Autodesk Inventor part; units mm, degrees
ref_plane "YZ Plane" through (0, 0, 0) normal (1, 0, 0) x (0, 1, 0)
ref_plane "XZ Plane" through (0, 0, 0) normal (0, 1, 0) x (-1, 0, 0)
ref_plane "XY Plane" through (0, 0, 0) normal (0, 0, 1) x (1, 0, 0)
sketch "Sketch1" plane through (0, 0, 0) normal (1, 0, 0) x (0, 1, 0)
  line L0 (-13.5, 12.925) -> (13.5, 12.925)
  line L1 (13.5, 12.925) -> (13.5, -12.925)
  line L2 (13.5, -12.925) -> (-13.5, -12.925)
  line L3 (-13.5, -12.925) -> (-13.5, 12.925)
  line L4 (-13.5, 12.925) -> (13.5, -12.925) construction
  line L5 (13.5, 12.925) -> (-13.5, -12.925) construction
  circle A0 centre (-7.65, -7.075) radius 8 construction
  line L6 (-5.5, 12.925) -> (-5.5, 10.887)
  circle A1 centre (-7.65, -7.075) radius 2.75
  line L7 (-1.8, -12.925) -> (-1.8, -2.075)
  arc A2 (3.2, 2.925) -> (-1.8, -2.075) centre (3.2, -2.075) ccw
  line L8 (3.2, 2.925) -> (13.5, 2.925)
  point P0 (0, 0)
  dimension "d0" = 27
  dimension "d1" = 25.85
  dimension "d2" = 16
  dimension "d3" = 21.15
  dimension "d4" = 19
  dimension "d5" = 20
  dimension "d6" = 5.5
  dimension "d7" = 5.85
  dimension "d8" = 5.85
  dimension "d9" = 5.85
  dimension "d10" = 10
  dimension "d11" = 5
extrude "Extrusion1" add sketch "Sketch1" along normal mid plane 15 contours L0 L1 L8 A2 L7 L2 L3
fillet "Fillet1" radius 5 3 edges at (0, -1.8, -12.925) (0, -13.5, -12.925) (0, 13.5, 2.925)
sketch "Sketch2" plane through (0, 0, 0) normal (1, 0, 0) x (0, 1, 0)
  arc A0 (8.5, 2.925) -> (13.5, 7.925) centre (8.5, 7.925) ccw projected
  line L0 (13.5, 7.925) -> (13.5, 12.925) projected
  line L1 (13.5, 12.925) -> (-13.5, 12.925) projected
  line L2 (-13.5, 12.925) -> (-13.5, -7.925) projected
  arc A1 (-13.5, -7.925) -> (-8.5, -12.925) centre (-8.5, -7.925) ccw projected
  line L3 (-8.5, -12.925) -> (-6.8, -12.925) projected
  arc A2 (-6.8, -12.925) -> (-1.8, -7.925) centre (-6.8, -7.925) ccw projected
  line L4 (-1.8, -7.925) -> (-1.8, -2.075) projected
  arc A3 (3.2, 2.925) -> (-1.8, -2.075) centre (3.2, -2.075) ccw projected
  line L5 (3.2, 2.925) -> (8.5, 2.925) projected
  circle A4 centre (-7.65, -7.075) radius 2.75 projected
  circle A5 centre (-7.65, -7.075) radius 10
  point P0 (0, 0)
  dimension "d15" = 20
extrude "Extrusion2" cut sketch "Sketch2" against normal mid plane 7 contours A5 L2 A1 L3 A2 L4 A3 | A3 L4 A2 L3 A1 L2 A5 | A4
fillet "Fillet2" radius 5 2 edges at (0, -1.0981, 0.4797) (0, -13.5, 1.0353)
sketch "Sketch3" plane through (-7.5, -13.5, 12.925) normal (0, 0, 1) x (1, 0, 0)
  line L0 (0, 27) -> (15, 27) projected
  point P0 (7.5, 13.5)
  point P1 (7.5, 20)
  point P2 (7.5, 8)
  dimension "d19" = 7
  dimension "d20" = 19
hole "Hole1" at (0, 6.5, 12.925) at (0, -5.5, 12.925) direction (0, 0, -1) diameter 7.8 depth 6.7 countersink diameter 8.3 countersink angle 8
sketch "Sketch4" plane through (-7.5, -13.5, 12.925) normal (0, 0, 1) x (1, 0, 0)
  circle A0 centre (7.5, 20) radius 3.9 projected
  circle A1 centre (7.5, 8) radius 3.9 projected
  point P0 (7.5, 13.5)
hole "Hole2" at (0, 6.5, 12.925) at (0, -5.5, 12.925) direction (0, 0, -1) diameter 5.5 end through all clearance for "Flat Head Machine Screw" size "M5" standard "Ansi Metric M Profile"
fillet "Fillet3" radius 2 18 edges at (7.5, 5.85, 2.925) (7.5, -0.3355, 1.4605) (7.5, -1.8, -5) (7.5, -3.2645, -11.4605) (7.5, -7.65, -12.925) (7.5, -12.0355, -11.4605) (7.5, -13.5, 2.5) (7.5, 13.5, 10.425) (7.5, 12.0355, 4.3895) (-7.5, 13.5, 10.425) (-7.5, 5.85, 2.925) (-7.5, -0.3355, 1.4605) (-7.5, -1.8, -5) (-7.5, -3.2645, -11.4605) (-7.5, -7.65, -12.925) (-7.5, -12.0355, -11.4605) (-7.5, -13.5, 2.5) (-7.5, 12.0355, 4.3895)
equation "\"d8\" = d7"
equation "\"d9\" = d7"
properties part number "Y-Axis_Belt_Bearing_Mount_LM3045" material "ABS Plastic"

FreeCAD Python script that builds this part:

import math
import FreeCAD as App
import Part
import Sketcher
from FreeCAD import Vector


def edges_at(feature, points):
    """Names of the edges that pass closest to the given points."""
    edges = feature.Shape.Edges
    near = lambda p: min(range(len(edges)), key=lambda i: edges[i].distToShape(Part.Vertex(*p))[0])
    return sorted({f"Edge{near(p) + 1}" for p in points})

doc = App.newDocument("Part")
body = doc.addObject("PartDesign::Body", "Body")

# Sketch on YZ plane
sketch1 = body.newObject("Sketcher::SketchObject", "Sketch")
sketch1.AttachmentSupport = (doc.getObject("YZ_Plane"), [""])
sketch1.MapMode = "FlatFace"
sketch1.addGeometry([
    Part.LineSegment(Vector(13.5, 12.9, 0), Vector(-13.5, 12.9, 0)),  # 0
    Part.LineSegment(Vector(-13.5, 12.9, 0), Vector(-13.5, -12.9, 0)),  # 1
    Part.LineSegment(Vector(-13.5, -12.9, 0), Vector(-1.8, -12.9, 0)),  # 2
    Part.LineSegment(Vector(-1.8, -12.9, 0), Vector(-1.8, -2.1, 0)),  # 3
    Part.ArcOfCircle(Part.Circle(Vector(3.2, -2.1, 0), Vector(0, 0, 1), 5), math.radians(90), math.radians(180)),  # 4
    Part.LineSegment(Vector(3.2, 2.9, 0), Vector(13.5, 2.9, 0)),  # 5
    Part.LineSegment(Vector(13.5, 2.9, 0), Vector(13.5, 12.9, 0)),  # 6
    Part.Circle(Vector(-7.7, -7.1, 0), Vector(0, 0, 1), 2.8),  # 7
], False)
sketch1.addConstraint([
    Sketcher.Constraint("Coincident", 0, 2, 1, 1),
    Sketcher.Constraint("Coincident", 1, 2, 2, 1),
    Sketcher.Constraint("Coincident", 2, 2, 3, 1),
    Sketcher.Constraint("Tangent", 3, 2, 4, 2),
    Sketcher.Constraint("Tangent", 4, 1, 5, 1),
    Sketcher.Constraint("Coincident", 5, 2, 6, 1),
    Sketcher.Constraint("Coincident", 6, 2, 0, 1),
    Sketcher.Constraint("Horizontal", 0),
    Sketcher.Constraint("Vertical", 1),
    Sketcher.Constraint("Horizontal", 2),
    Sketcher.Constraint("Vertical", 3),
    Sketcher.Constraint("Horizontal", 5),
    Sketcher.Constraint("Vertical", 6),
    Sketcher.Constraint("Symmetric", 1, 2, 6, 2, -1, 1),
    Sketcher.Constraint("Radius", 4, 5.0),
    Sketcher.Constraint("Diameter", 7, 5.5),
    Sketcher.Constraint("DistanceX", 0, 2, 0, 1, 27.0),
    Sketcher.Constraint("DistanceY", 6, 1, 6, 2, 10.0),
    Sketcher.Constraint("DistanceY", 7, 3, 4, 3, 5.0),
    Sketcher.Constraint("DistanceY", 1, 2, 1, 1, 25.85),
    Sketcher.Constraint("DistanceX", 0, 2, 7, 3, 5.85),
    Sketcher.Constraint("DistanceX", 7, 3, 2, 2, 5.85),
])
pad1 = body.newObject("PartDesign::Pad", "Pad")
pad1.Profile = sketch1
pad1.Length = 15
pad1.Midplane = True
doc.recompute()

fillet = body.newObject("PartDesign::Fillet", "Fillet")
fillet.Base = (pad1, edges_at(pad1, [(0, -1.8, -12.925), (0, -13.5, -12.925), (0, 13.5, 2.925)]))
fillet.Radius = 5

# Sketch on YZ plane
sketch2 = body.newObject("Sketcher::SketchObject", "Sketch001")
sketch2.AttachmentSupport = (doc.getObject("YZ_Plane"), [""])
sketch2.MapMode = "FlatFace"
sketch2.addGeometry(Part.Circle(Vector(-8, -7, 0), Vector(0, 0, 1), 10), False)
sketch2.addConstraint([
    Sketcher.Constraint("Diameter", 0, 20.0),
    Sketcher.Constraint("DistanceX", 0, 3, -1, 1, 7.65),
    Sketcher.Constraint("DistanceY", 0, 3, -1, 1, 7.075),
])
pocket1 = body.newObject("PartDesign::Pocket", "Pocket")
pocket1.Profile = sketch2
pocket1.Length = 7
pocket1.Midplane = True
doc.recompute()

fillet2 = body.newObject("PartDesign::Fillet", "Fillet001")
fillet2.Base = (pocket1, edges_at(pocket1, [(0, -1.098, 0.48), (0, -13.5, 1.035)]))
fillet2.Radius = 5

# Sketch on XY plane
sketch3 = body.newObject("Sketcher::SketchObject", "Sketch002")
sketch3.AttachmentSupport = (doc.getObject("XY_Plane"), [""])
sketch3.MapMode = "FlatFace"
sketch3.AttachmentOffset = App.Placement(Vector(0, 0, 12.925), App.Rotation())
sketch3.addGeometry([
    Part.Circle(Vector(0, 6.5, 0), Vector(0, 0, 1), 3.9),
    Part.Circle(Vector(0, -5.5, 0), Vector(0, 0, 1), 3.9),
], False)
sketch3.addConstraint([
    Sketcher.Constraint("Equal", 0, 1),
    Sketcher.Constraint("PointOnObject", 0, 3, -2),
    Sketcher.Constraint("PointOnObject", 1, 3, -2),
    Sketcher.Constraint("Diameter", 0, 7.8),
    Sketcher.Constraint("DistanceY", 1, 3, 0, 3, 12.0),
    Sketcher.Constraint("DistanceY", -1, 1, 0, 3, 6.5),
])
doc.recompute()
hole = body.newObject("PartDesign::Hole", "Hole")
hole.Profile = sketch3
hole.ThreadType = "None"
hole.Diameter = 7.8
hole.DepthType = "Dimension"
hole.Depth = 6.7
hole.DrillPoint = "Flat"
hole.HoleCutType = "Countersink"
hole.HoleCutDiameter = 8.3
hole.HoleCutCountersinkAngle = 8

# Sketch on XY plane
sketch4 = body.newObject("Sketcher::SketchObject", "Sketch003")
sketch4.AttachmentSupport = (doc.getObject("XY_Plane"), [""])
sketch4.MapMode = "FlatFace"
sketch4.AttachmentOffset = App.Placement(Vector(0, 0, 12.925), App.Rotation())
sketch4.addGeometry([
    Part.Circle(Vector(0, 6.5, 0), Vector(0, 0, 1), 2.8),
    Part.Circle(Vector(0, -5.5, 0), Vector(0, 0, 1), 2.8),
], False)
sketch4.addConstraint([
    Sketcher.Constraint("Equal", 0, 1),
    Sketcher.Constraint("PointOnObject", 0, 3, -2),
    Sketcher.Constraint("PointOnObject", 1, 3, -2),
    Sketcher.Constraint("Diameter", 0, 5.5),
    Sketcher.Constraint("DistanceY", 1, 3, 0, 3, 12.0),
    Sketcher.Constraint("DistanceY", -1, 1, 0, 3, 6.5),
])
doc.recompute()
hole2 = body.newObject("PartDesign::Hole", "Hole001")
hole2.Profile = sketch4
hole2.ThreadType = "None"
hole2.Diameter = 5.5
hole2.DepthType = "ThroughAll"
doc.recompute()

fillet3 = body.newObject("PartDesign::Fillet", "Fillet002")
fillet3.Base = (hole2, edges_at(hole2, [
    (7.5, 5.85, 2.925),
    (7.5, -0.336, 1.46),
    (7.5, -1.8, -5),
    (7.5, -3.264, -11.46),
    (7.5, -7.65, -12.925),
    (7.5, -12.036, -11.46),
    (7.5, -13.5, 2.5),
    (7.5, 13.5, 10.425),
    (7.5, 12.036, 4.389),
    (-7.5, 13.5, 10.425),
    (-7.5, 5.85, 2.925),
    (-7.5, -0.336, 1.46),
    (-7.5, -1.8, -5),
    (-7.5, -3.264, -11.46),
    (-7.5, -7.65, -12.925),
    (-7.5, -12.036, -11.46),
    (-7.5, -13.5, 2.5),
    (-7.5, 12.036, 4.389),
]))
fillet3.Radius = 2

doc.recompute()
